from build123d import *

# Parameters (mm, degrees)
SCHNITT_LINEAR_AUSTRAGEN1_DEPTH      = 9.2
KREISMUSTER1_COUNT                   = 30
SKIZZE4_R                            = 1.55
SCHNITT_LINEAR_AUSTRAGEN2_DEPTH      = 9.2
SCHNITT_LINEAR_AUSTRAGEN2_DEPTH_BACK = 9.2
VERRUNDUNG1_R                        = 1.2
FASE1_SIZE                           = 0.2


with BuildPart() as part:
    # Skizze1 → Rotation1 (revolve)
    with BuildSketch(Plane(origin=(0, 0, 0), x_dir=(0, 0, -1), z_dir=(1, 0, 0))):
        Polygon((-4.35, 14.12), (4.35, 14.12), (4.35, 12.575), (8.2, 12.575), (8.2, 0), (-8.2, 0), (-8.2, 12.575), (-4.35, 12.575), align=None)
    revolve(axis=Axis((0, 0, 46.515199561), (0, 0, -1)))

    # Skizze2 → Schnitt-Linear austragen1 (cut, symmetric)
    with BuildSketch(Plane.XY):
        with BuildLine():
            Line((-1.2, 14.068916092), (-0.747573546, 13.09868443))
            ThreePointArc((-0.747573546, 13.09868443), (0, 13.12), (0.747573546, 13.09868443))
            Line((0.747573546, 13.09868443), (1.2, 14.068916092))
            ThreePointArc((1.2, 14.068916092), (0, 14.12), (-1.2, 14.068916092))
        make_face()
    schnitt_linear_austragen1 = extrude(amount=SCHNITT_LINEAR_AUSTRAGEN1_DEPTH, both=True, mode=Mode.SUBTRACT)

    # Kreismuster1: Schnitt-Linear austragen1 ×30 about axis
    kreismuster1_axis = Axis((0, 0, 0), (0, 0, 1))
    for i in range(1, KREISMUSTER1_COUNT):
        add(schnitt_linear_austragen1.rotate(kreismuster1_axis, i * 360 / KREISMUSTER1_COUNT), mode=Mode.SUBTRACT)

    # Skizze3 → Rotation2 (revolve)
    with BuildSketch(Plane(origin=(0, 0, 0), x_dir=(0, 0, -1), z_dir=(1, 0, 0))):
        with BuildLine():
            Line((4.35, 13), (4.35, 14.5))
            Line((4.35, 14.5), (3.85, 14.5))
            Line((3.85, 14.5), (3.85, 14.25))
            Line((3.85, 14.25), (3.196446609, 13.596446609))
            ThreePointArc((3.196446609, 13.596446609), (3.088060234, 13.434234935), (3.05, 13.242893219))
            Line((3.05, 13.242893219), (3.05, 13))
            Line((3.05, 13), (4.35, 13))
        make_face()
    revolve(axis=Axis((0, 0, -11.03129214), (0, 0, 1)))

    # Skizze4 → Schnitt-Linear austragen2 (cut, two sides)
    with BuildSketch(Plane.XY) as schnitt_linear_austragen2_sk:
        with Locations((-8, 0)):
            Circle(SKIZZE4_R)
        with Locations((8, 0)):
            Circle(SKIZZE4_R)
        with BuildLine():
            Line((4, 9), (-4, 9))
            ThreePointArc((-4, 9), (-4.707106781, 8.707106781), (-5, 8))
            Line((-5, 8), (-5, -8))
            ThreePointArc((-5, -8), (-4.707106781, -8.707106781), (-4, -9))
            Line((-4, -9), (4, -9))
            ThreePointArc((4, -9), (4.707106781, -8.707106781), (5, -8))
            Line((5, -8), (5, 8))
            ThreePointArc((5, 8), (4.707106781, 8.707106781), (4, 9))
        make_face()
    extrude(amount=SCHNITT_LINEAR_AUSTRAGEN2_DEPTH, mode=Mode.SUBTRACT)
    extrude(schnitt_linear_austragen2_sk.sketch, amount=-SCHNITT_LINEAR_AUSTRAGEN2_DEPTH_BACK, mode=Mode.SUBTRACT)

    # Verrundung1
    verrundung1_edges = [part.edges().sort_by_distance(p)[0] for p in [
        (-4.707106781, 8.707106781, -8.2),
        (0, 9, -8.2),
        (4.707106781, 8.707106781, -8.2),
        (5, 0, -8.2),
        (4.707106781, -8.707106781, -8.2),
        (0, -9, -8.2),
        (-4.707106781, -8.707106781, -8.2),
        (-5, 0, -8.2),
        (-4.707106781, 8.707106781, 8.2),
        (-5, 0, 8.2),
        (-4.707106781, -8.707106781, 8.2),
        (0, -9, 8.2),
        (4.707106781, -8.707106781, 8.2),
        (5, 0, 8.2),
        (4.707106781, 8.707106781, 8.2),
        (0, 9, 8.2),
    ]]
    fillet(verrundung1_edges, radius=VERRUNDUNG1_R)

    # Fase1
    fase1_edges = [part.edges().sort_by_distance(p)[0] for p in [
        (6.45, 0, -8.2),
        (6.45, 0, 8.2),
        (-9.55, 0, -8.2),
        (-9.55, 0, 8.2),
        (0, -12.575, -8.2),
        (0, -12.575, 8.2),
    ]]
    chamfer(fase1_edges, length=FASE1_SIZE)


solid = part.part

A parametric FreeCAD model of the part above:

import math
import FreeCAD as App
import Part
import Sketcher
from FreeCAD import Vector
Q = App.Units.Quantity


def edges_at(feature, points):
    """Names of the edges that pass closest to the given points."""
    edges = feature.Shape.Edges
    near = lambda p: min(range(len(edges)), key=lambda i: edges[i].distToShape(Part.Vertex(*p))[0])
    return sorted({f"Edge{near(p) + 1}" for p in points})

doc = App.newDocument("Part")
params = doc.addObject("Spreadsheet::Sheet", "Params")
for row, (alias, value) in enumerate([
    ("sketch1_height", "8.7 mm"),
    ("sketch1_height2", "16.4 mm"),
    ("revolution_angle", "360 deg"),
    ("sketch2_radius", "13.12 mm"),
    ("sketch2_radius2", "14.12 mm"),
    ("pocket1_length", "18.4 mm"),
    ("sketch3_radius", "0.5 mm"),
    ("sketch3_width", "1.5 mm"),
    ("sketch3_height", "0.5 mm"),
    ("sketch3_height2", "1.3 mm"),
    ("sketch3_width2", "0.25 mm"),
    ("revolution2_angle", "360 deg"),
    ("sketch4_radius", "1 mm"),
    ("sketch4_diameter", "3.1 mm"),
    ("sketch4_width", "8 mm"),
    ("sketch4_height", "16 mm"),
    ("fillet_radius", "1.2 mm"),
    ("chamfer_size", "0.2 mm"),
], start=1):
    params.set(f"A{row}", alias)
    params.set(f"B{row}", "=" + value)
    params.setAlias(f"B{row}", alias)

body = doc.addObject("PartDesign::Body", "Body")

sketch1 = body.newObject("Sketcher::SketchObject", "Sketch")
sketch1.AttachmentSupport = (doc.getObject("YZ_Plane"), [""])
sketch1.MapMode = "FlatFace"
sketch1.addGeometry([
    Part.LineSegment(Vector(14.1, -4.3, 0), Vector(14.1, 4.3, 0)),
    Part.LineSegment(Vector(14.1, 4.3, 0), Vector(12.6, 4.3, 0)),
    Part.LineSegment(Vector(12.6, 4.3, 0), Vector(12.6, 8.2, 0)),
    Part.LineSegment(Vector(12.6, 8.2, 0), Vector(0, 8.2, 0)),
    Part.LineSegment(Vector(0, 8.2, 0), Vector(0, -8.2, 0)),
    Part.LineSegment(Vector(0, -8.2, 0), Vector(12.6, -8.2, 0)),
    Part.LineSegment(Vector(12.6, -8.2, 0), Vector(12.6, -4.3, 0)),
    Part.LineSegment(Vector(12.6, -4.3, 0), Vector(14.1, -4.3, 0)),
], False)
sketch1.addConstraint([
    Sketcher.Constraint("Coincident", 0, 2, 1, 1),
    Sketcher.Constraint("Coincident", 1, 2, 2, 1),
    Sketcher.Constraint("Coincident", 2, 2, 3, 1),
    Sketcher.Constraint("Coincident", 3, 2, 4, 1),
    Sketcher.Constraint("Coincident", 4, 2, 5, 1),
    Sketcher.Constraint("Coincident", 5, 2, 6, 1),
    Sketcher.Constraint("Coincident", 6, 2, 7, 1),
    Sketcher.Constraint("Coincident", 7, 2, 0, 1),
    Sketcher.Constraint("Vertical", 0),
    Sketcher.Constraint("Horizontal", 1),
    Sketcher.Constraint("Vertical", 2),
    Sketcher.Constraint("Horizontal", 3),
    Sketcher.Constraint("Vertical", 4),
    Sketcher.Constraint("Horizontal", 5),
    Sketcher.Constraint("Vertical", 6),
    Sketcher.Constraint("Horizontal", 7),
    Sketcher.Constraint("Symmetric", 3, 2, 4, 2, -1, 1),
    Sketcher.Constraint("Symmetric", 1, 2, 6, 2, -1),
    Sketcher.Constraint("DistanceY", 0, 1, 0, 2, Q("8.7 mm")),
    Sketcher.Constraint("DistanceY", 4, 2, 4, 1, Q("16.4 mm")),
    Sketcher.Constraint("DistanceX", 1, 2, 1, 1, Q("1.545 mm")),
    Sketcher.Constraint("DistanceX", 3, 2, 3, 1, Q("12.575 mm")),
])
sketch1.setExpression("Constraints[18]", "Params.sketch1_height")
sketch1.setExpression("Constraints[19]", "Params.sketch1_height2")
revolution = body.newObject("PartDesign::Revolution", "Revolution")
revolution.Profile = sketch1
revolution.ReferenceAxis = (sketch1, ["V_Axis"])
revolution.setExpression("Angle", "Params.revolution_angle")

sketch2 = body.newObject("Sketcher::SketchObject", "Sketch001")
sketch2.AttachmentSupport = (doc.getObject("XY_Plane"), [""])
sketch2.MapMode = "FlatFace"
sketch2.addGeometry([
    Part.LineSegment(Vector(-1.2, 14.1, 0), Vector(-0.7, 13.1, 0)),
    Part.ArcOfCircle(Part.Circle(Vector(0, 0, 0), Vector(0, 0, 1), 13.1), math.radians(86.73), math.radians(93.27)),
    Part.LineSegment(Vector(0.7, 13.1, 0), Vector(1.2, 14.1, 0)),
    Part.ArcOfCircle(Part.Circle(Vector(0, 0, 0), Vector(0, 0, 1), 14.1), math.radians(85.12), math.radians(94.88)),
], False)
sketch2.addConstraint([
    Sketcher.Constraint("Coincident", 0, 2, 1, 2),
    Sketcher.Constraint("Coincident", 1, 1, 2, 1),
    Sketcher.Constraint("Coincident", 2, 2, 3, 1),
    Sketcher.Constraint("Coincident", 3, 2, 0, 1),
    Sketcher.Constraint("Coincident", 1, 3, -1, 1),
    Sketcher.Constraint("Coincident", 3, 3, -1, 1),
    Sketcher.Constraint("Horizontal", 0, 2, 1, 1),
    Sketcher.Constraint("Horizontal", 2, 2, 3, 2),
    Sketcher.Constraint("Angle", 0, Q("-65 deg")),
    Sketcher.Constraint("Radius", 1, Q("13.12 mm")),
    Sketcher.Constraint("Radius", 3, Q("14.12 mm")),
    Sketcher.Constraint("DistanceX", -1, 1, 2, 2, Q("1.2 mm")),
])
sketch2.setExpression("Constraints[9]", "Params.sketch2_radius")
sketch2.setExpression("Constraints[10]", "Params.sketch2_radius2")
pocket1 = body.newObject("PartDesign::Pocket", "Pocket")
pocket1.Profile = sketch2
pocket1.setExpression("Length", "Params.pocket1_length")
pocket1.Midplane = True
doc.recompute()

polarpattern = body.newObject("PartDesign::PolarPattern", "PolarPattern")
polarpattern.Originals = [pocket1]
polarpattern.Axis = (doc.getObject("Z_Axis"), [""])
polarpattern.Angle = 360
polarpattern.Occurrences = 30
body.Tip = polarpattern

sketch3 = body.newObject("Sketcher::SketchObject", "Sketch002")
sketch3.AttachmentSupport = (doc.getObject("YZ_Plane"), [""])
sketch3.MapMode = "FlatFace"
sketch3.addGeometry([
    Part.LineSegment(Vector(13, -4.35, 0), Vector(14.5, -4.35, 0)),
    Part.LineSegment(Vector(14.5, -4.35, 0), Vector(14.5, -3.85, 0)),
    Part.LineSegment(Vector(14.5, -3.85, 0), Vector(14.25, -3.85, 0)),
    Part.LineSegment(Vector(14.25, -3.85, 0), Vector(13.6, -3.2, 0)),
    Part.ArcOfCircle(Part.Circle(Vector(13.24, -3.55, 0), Vector(0, 0, 1), 0.5), math.radians(45), math.radians(90)),
    Part.LineSegment(Vector(13.24, -3.05, 0), Vector(13, -3.05, 0)),
    Part.LineSegment(Vector(13, -3.05, 0), Vector(13, -4.35, 0)),
], False)
sketch3.addConstraint([
    Sketcher.Constraint("Coincident", 0, 2, 1, 1),
    Sketcher.Constraint("Coincident", 1, 2, 2, 1),
    Sketcher.Constraint("Coincident", 2, 2, 3, 1),
    Sketcher.Constraint("Tangent", 3, 2, 4, 1),
    Sketcher.Constraint("Tangent", 4, 2, 5, 1),
    Sketcher.Constraint("Coincident", 5, 2, 6, 1),
    Sketcher.Constraint("Coincident", 6, 2, 0, 1),
    Sketcher.Constraint("Horizontal", 0),
    Sketcher.Constraint("Vertical", 1),
    Sketcher.Constraint("Horizontal", 2),
    Sketcher.Constraint("Horizontal", 5),
    Sketcher.Constraint("Vertical", 6),
    Sketcher.Constraint("Radius", 4, Q("0.5 mm")),
    Sketcher.Constraint("Angle", 3, Q("135 deg")),
    Sketcher.Constraint("DistanceX", 0, 1, 0, 2, Q("1.5 mm")),
    Sketcher.Constraint("DistanceY", 1, 1, 1, 2, Q("0.5 mm")),
    Sketcher.Constraint("DistanceY", 6, 2, 6, 1, Q("1.3 mm")),
    Sketcher.Constraint("DistanceX", -1, 1, 5, 2, Q("13 mm")),
    Sketcher.Constraint("DistanceX", 2, 2, 2, 1, Q("0.25 mm")),
    Sketcher.Constraint("DistanceY", 4, 3, -1, 1, Q("3.55 mm")),
])
sketch3.setExpression("Constraints[12]", "Params.sketch3_radius")
sketch3.setExpression("Constraints[14]", "Params.sketch3_width")
sketch3.setExpression("Constraints[15]", "Params.sketch3_height")
sketch3.setExpression("Constraints[16]", "Params.sketch3_height2")
sketch3.setExpression("Constraints[18]", "Params.sketch3_width2")
revolution2 = body.newObject("PartDesign::Revolution", "Revolution001")
revolution2.Profile = sketch3
revolution2.ReferenceAxis = (sketch3, ["V_Axis"])
revolution2.setExpression("Angle", "Params.revolution2_angle")

sketch4 = body.newObject("Sketcher::SketchObject", "Sketch003")
sketch4.AttachmentSupport = (doc.getObject("XY_Plane"), [""])
sketch4.MapMode = "FlatFace"
sketch4.addGeometry([
    Part.Circle(Vector(-8, 0, 0), Vector(0, 0, 1), 1.6),
    Part.Circle(Vector(8, 0, 0), Vector(0, 0, 1), 1.6),
    Part.LineSegment(Vector(4, 9, 0), Vector(-4, 9, 0)),
    Part.ArcOfCircle(Part.Circle(Vector(-4, 8, 0), Vector(0, 0, 1), 1), math.radians(90), math.radians(180)),
    Part.LineSegment(Vector(-5, 8, 0), Vector(-5, -8, 0)),
    Part.ArcOfCircle(Part.Circle(Vector(-4, -8, 0), Vector(0, 0, 1), 1), math.radians(-180), math.radians(-90)),
    Part.LineSegment(Vector(-4, -9, 0), Vector(4, -9, 0)),
    Part.ArcOfCircle(Part.Circle(Vector(4, -8, 0), Vector(0, 0, 1), 1), math.radians(-90), math.radians(0)),
    Part.LineSegment(Vector(5, -8, 0), Vector(5, 8, 0)),
    Part.ArcOfCircle(Part.Circle(Vector(4, 8, 0), Vector(0, 0, 1), 1), math.radians(0), math.radians(90)),
], False)
sketch4.addConstraint([
    Sketcher.Constraint("Tangent", 2, 2, 3, 1),
    Sketcher.Constraint("Tangent", 3, 2, 4, 1),
    Sketcher.Constraint("Tangent", 4, 2, 5, 1),
    Sketcher.Constraint("Tangent", 5, 2, 6, 1),
    Sketcher.Constraint("Tangent", 6, 2, 7, 1),
    Sketcher.Constraint("Tangent", 7, 2, 8, 1),
    Sketcher.Constraint("Tangent", 8, 2, 9, 1),
    Sketcher.Constraint("Tangent", 9, 2, 2, 1),
    Sketcher.Constraint("Horizontal", 2),
    Sketcher.Constraint("Vertical", 4),
    Sketcher.Constraint("Horizontal", 6),
    Sketcher.Constraint("Vertical", 8),
    Sketcher.Constraint("Equal", 0, 1),
    Sketcher.Constraint("Equal", 3, 5),
    Sketcher.Constraint("Equal", 5, 7),
    Sketcher.Constraint("Equal", 7, 9),
    Sketcher.Constraint("Symmetric", 0, 3, 1, 3, -1, 1),
    Sketcher.Constraint("Symmetric", 3, 3, 7, 3, -1, 1),
    Sketcher.Constraint("PointOnObject", 0, 3, -1),
    Sketcher.Constraint("Radius", 3, Q("1 mm")),
    Sketcher.Constraint("Diameter", 0, Q("3.1 mm")),
    Sketcher.Constraint("DistanceX", 2, 2, 2, 1, Q("8 mm")),
    Sketcher.Constraint("DistanceY", 4, 2, 4, 1, Q("16 mm")),
    Sketcher.Constraint("DistanceX", 0, 3, -1, 1, Q("8 mm")),
])
sketch4.setExpression("Constraints[19]", "Params.sketch4_radius")
sketch4.setExpression("Constraints[20]", "Params.sketch4_diameter")
sketch4.setExpression("Constraints[21]", "Params.sketch4_width")
sketch4.setExpression("Constraints[22]", "Params.sketch4_height")
pocket2 = body.newObject("PartDesign::Pocket", "Pocket001")
pocket2.Profile = sketch4
pocket2.Type = "ThroughAll"
pocket2.Midplane = True
doc.recompute()

fillet = body.newObject("PartDesign::Fillet", "Fillet")
fillet.Base = (pocket2, edges_at(pocket2, [
    (-4.707, 8.707, -8.2),
    (0, 9, -8.2),
    (4.707, 8.707, -8.2),
    (5, 0, -8.2),
    (4.707, -8.707, -8.2),
    (0, -9, -8.2),
    (-4.707, -8.707, -8.2),
    (-5, 0, -8.2),
    (-4.707, 8.707, 8.2),
    (-5, 0, 8.2),
    (-4.707, -8.707, 8.2),
    (0, -9, 8.2),
    (4.707, -8.707, 8.2),
    (5, 0, 8.2),
    (4.707, 8.707, 8.2),
    (0, 9, 8.2),
]))
fillet.setExpression("Radius", "Params.fillet_radius")
doc.recompute()

chamfer = body.newObject("PartDesign::Chamfer", "Chamfer")
chamfer.Base = (fillet, edges_at(fillet, [
    (6.45, 0, -8.2),
    (6.45, 0, 8.2),
    (-9.55, 0, -8.2),
    (-9.55, 0, 8.2),
    (0, -12.575, -8.2),
    (0, -12.575, 8.2),
]))
chamfer.setExpression("Size", "Params.chamfer_size")

doc.recompute()
